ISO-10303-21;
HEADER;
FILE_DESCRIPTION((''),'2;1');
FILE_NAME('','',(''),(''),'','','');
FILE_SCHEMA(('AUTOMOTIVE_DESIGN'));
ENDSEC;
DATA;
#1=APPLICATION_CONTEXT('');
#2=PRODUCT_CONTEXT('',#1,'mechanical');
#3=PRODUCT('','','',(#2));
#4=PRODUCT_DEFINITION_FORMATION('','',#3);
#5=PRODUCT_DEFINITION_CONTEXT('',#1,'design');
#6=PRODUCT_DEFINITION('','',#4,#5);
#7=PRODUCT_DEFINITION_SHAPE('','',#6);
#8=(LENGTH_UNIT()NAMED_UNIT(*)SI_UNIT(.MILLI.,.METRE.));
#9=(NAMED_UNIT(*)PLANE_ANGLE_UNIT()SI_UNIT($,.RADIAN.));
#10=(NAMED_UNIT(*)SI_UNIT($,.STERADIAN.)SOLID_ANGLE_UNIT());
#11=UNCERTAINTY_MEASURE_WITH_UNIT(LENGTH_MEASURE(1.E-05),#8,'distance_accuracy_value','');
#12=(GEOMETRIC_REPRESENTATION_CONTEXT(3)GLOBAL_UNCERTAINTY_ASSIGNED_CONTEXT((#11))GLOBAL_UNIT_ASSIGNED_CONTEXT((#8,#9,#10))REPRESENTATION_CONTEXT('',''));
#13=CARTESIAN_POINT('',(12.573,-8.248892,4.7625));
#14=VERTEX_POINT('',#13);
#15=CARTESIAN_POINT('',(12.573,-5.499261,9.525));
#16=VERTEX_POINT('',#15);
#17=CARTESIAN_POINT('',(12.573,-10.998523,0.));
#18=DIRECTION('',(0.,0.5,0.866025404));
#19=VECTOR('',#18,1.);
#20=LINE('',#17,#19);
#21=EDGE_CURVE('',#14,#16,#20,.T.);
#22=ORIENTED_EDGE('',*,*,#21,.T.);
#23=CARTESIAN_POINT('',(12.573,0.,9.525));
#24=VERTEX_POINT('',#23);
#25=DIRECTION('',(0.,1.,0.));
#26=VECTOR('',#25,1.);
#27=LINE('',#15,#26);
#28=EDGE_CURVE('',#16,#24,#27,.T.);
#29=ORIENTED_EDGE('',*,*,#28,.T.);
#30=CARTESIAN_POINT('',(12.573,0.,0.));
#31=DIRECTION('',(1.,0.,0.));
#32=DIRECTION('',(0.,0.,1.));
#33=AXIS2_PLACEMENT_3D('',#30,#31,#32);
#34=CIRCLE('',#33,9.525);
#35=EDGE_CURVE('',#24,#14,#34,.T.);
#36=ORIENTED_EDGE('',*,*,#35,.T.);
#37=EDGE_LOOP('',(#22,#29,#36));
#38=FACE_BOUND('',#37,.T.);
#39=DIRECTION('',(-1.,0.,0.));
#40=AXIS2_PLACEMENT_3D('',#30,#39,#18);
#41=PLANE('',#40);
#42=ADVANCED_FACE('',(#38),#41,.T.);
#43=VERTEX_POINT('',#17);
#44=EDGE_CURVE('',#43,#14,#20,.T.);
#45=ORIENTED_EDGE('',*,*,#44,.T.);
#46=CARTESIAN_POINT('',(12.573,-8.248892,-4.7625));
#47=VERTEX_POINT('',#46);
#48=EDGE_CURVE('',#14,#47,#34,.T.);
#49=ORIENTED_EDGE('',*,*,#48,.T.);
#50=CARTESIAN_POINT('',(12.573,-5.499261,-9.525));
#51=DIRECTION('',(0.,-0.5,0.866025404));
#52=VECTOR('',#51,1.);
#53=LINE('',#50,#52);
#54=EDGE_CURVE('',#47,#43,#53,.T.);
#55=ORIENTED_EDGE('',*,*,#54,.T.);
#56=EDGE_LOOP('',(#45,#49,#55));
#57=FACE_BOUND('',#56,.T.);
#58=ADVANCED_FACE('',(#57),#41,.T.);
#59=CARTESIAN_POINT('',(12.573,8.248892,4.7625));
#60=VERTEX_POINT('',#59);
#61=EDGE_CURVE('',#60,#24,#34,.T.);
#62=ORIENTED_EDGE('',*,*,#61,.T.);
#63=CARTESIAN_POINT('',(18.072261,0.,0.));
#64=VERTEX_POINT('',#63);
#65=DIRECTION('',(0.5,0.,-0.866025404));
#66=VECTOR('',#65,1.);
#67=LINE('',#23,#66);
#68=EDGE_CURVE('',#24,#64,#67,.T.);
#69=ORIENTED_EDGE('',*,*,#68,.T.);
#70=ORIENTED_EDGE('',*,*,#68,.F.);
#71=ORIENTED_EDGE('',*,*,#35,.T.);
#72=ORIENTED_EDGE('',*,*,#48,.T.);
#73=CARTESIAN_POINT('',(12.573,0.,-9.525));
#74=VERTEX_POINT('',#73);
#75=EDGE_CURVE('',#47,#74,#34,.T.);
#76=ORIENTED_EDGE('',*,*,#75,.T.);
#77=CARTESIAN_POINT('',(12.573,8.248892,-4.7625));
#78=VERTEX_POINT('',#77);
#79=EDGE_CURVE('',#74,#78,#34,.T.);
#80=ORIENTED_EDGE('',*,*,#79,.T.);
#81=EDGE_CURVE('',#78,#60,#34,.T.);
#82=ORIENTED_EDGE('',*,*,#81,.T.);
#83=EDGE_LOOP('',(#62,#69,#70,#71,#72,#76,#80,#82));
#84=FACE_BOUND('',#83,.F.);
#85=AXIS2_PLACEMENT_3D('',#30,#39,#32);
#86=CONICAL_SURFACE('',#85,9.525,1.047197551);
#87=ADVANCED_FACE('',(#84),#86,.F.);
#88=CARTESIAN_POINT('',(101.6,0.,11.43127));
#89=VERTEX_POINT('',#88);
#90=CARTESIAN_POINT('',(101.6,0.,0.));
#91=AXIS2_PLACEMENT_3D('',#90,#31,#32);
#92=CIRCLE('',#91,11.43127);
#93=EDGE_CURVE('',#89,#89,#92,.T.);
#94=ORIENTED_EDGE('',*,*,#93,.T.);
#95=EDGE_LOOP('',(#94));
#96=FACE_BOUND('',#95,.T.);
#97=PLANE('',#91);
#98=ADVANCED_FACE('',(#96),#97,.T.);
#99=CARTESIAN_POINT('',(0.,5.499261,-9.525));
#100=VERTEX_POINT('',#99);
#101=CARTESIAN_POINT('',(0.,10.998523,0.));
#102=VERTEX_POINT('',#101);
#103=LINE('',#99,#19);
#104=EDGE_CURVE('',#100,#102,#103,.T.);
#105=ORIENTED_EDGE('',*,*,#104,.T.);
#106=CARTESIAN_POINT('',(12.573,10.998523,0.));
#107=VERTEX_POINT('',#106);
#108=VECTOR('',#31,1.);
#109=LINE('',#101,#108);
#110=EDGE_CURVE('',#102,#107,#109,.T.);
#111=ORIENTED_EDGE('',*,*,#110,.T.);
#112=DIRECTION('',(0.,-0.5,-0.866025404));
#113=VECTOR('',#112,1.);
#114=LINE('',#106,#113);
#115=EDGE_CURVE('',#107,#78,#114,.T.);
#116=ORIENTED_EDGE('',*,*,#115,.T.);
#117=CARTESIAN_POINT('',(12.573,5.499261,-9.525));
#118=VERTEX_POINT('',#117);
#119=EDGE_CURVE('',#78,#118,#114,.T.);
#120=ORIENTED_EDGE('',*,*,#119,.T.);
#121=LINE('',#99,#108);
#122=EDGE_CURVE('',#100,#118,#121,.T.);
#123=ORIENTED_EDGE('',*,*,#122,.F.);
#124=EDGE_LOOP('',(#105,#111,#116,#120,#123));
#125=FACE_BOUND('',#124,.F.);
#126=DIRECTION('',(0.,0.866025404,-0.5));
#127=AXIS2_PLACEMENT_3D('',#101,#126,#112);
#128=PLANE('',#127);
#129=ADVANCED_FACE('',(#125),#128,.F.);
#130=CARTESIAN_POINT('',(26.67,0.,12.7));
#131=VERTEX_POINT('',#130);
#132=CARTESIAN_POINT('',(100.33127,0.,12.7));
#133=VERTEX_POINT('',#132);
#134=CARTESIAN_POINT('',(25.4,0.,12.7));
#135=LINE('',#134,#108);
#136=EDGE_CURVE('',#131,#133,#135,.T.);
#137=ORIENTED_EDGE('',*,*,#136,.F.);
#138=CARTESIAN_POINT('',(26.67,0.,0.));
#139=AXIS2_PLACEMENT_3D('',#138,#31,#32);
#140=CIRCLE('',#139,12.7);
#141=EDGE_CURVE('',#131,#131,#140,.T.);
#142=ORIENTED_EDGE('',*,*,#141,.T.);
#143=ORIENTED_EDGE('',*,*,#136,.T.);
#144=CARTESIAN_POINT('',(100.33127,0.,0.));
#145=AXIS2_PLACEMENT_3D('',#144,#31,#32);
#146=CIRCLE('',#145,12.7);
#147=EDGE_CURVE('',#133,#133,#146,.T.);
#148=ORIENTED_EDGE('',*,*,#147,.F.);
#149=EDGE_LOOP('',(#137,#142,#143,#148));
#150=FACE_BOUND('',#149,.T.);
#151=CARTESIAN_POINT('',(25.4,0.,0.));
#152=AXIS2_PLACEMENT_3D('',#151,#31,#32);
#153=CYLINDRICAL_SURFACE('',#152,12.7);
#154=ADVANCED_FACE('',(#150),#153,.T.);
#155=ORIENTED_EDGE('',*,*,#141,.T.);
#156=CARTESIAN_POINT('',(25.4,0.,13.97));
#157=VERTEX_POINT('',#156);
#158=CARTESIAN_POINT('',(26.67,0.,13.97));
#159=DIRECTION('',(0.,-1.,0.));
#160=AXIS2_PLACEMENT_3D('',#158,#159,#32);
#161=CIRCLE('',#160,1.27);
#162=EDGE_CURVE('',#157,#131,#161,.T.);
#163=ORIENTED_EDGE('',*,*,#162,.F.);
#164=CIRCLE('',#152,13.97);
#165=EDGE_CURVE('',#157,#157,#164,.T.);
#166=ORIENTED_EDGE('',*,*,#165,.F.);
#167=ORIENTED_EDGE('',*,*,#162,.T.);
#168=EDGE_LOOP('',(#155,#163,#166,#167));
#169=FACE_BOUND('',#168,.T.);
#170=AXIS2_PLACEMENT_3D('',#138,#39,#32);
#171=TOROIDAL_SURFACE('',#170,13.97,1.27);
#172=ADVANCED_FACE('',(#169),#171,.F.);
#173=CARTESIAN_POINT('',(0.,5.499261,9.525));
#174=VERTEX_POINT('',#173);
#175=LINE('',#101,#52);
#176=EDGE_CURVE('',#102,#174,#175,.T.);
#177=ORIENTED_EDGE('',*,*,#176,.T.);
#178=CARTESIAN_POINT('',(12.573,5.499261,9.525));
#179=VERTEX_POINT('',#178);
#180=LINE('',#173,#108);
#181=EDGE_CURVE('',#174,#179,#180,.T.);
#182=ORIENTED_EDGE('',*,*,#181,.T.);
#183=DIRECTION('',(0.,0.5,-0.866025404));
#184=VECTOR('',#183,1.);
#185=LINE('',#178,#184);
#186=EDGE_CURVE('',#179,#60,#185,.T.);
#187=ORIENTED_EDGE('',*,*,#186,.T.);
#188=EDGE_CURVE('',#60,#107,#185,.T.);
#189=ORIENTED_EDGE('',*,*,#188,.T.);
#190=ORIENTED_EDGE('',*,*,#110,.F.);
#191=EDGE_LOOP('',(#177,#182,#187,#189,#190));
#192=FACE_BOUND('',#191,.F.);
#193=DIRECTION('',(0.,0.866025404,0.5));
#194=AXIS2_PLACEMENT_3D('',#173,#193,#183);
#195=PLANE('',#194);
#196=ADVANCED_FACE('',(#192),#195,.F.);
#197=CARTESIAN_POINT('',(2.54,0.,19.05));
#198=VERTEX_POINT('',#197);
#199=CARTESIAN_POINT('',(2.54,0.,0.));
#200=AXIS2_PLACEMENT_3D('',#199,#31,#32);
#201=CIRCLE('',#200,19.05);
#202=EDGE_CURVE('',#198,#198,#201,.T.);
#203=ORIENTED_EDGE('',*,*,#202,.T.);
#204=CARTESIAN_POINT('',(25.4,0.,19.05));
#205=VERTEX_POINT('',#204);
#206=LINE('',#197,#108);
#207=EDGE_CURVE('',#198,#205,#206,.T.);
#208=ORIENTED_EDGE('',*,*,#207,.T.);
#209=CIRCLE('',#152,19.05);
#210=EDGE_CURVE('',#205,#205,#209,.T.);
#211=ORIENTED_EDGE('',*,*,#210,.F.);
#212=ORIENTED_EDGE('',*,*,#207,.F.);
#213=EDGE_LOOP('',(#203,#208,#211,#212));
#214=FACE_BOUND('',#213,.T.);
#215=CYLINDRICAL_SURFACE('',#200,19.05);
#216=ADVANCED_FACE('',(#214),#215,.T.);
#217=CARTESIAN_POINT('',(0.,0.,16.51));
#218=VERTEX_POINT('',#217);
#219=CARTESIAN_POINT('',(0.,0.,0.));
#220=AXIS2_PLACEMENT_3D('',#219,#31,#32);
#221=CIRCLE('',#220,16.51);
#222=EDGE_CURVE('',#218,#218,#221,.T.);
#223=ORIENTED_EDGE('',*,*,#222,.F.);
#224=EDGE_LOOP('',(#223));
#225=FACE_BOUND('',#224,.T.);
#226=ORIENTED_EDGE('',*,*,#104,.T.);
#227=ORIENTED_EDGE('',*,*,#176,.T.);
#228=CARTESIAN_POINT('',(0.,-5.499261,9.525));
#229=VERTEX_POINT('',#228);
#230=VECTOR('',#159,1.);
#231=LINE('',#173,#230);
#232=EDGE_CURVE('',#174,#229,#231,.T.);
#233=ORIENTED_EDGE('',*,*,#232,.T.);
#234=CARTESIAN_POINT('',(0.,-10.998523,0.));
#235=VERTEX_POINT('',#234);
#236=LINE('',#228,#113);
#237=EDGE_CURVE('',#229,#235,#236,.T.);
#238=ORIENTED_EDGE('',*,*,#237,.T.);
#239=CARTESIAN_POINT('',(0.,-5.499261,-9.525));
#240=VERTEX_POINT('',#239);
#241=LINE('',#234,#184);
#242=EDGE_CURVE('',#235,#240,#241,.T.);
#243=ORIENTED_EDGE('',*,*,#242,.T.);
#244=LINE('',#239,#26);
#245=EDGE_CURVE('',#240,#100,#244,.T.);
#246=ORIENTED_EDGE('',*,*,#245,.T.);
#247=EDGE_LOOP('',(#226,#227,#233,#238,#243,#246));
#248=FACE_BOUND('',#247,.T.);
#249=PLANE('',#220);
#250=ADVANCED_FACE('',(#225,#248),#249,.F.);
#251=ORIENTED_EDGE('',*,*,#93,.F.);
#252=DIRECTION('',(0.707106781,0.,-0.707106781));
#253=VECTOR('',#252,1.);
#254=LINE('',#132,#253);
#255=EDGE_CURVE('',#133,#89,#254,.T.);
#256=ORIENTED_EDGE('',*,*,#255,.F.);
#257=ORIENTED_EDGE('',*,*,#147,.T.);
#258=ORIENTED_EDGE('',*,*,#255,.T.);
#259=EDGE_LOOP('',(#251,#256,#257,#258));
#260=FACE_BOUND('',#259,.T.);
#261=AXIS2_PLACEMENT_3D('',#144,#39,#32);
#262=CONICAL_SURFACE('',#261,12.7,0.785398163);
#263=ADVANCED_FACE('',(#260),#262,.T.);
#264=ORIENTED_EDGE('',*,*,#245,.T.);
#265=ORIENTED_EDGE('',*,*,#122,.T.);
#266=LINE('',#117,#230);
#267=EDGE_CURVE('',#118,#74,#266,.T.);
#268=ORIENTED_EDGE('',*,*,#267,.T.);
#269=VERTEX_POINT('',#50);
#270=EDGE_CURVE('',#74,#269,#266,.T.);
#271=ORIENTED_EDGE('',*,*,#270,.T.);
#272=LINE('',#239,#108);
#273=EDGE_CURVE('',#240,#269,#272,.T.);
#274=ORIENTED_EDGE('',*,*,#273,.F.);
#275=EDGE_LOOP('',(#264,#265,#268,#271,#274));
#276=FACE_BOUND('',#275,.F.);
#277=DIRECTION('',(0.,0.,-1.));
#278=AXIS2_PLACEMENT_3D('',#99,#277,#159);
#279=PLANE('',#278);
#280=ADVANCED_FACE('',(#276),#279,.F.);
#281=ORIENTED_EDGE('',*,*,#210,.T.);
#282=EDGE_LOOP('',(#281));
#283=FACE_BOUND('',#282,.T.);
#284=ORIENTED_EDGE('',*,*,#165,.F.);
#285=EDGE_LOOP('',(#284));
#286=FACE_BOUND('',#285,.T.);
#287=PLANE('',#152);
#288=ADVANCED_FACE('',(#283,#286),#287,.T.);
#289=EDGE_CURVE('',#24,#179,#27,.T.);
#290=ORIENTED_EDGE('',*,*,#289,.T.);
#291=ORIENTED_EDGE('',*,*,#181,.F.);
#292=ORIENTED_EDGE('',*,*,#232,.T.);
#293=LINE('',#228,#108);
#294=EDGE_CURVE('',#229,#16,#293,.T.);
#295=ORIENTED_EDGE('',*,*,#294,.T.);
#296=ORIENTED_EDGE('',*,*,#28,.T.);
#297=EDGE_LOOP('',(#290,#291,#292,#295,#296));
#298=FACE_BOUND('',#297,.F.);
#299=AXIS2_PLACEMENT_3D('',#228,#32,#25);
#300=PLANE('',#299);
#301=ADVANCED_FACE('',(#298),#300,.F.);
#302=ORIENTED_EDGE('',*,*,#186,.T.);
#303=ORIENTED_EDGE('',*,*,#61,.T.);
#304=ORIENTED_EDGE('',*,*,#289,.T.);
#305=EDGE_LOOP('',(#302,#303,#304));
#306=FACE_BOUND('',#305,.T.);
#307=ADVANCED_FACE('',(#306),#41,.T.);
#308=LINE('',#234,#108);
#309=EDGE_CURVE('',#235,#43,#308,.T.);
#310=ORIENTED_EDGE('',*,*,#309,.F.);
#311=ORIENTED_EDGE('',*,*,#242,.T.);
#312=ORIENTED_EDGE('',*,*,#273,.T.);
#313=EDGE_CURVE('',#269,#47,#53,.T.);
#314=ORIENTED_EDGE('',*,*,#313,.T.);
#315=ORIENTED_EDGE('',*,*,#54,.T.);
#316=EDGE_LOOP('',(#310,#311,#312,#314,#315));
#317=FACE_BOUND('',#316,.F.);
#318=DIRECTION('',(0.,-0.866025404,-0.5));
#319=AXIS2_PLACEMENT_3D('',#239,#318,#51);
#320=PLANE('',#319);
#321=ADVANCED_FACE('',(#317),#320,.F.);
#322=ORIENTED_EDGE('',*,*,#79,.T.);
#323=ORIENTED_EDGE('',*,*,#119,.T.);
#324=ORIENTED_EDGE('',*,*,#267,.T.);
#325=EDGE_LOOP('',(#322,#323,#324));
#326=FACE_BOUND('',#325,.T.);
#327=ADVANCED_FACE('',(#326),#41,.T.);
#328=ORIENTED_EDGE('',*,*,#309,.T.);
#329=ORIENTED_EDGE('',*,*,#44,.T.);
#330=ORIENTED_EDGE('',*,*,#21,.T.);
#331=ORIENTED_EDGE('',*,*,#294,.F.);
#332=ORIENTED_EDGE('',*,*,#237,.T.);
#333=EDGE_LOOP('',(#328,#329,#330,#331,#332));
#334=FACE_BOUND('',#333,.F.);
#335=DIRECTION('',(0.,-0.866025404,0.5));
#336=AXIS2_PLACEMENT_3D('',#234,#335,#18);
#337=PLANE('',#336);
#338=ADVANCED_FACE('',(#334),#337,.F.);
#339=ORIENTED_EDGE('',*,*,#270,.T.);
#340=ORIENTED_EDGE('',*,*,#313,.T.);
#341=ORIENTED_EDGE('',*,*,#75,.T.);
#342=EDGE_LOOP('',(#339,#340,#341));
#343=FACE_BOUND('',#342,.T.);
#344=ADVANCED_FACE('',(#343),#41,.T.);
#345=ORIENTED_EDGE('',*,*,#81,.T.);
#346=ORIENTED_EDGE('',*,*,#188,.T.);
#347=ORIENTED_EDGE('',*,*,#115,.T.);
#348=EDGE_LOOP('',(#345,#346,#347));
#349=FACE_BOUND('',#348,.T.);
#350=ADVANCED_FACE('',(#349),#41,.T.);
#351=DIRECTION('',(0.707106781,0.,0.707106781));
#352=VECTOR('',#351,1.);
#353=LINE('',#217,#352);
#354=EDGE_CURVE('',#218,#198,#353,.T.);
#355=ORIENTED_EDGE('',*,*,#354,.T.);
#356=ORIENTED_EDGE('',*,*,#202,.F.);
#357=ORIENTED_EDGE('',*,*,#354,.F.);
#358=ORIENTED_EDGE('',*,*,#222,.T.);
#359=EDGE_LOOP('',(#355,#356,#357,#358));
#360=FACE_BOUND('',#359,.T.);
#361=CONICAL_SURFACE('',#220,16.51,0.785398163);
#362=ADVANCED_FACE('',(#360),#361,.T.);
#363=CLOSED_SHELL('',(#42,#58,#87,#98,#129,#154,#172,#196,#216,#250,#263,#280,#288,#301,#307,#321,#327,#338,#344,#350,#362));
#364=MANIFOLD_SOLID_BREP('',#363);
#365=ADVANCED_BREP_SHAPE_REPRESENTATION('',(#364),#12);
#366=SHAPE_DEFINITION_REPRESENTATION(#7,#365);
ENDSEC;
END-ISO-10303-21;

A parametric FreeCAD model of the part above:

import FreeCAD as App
import Part
import Sketcher
Q = App.Units.Quantity


def edges_at(feature, points):
    """Names of the edges that pass closest to the given points."""
    edges = feature.Shape.Edges
    near = lambda p: min(range(len(edges)), key=lambda i: edges[i].distToShape(Part.Vertex(*p))[0])
    return sorted({f"Edge{near(p) + 1}" for p in points})

doc = App.newDocument("Part")
body = doc.addObject("PartDesign::Body", "Body")

sketch1 = body.newObject("Sketcher::SketchObject", "Sketch")
sketch1.AttachmentSupport = (doc.getObject("XY_Plane"), [""])
sketch1.MapMode = "FlatFace"
sketch1.addGeometry([
    Part.LineSegment(App.Vector(0, 16.51, 0), App.Vector(0, 0, 0)),
    Part.LineSegment(App.Vector(0, 0, 0), App.Vector(101.6, 0, 0)),
    Part.LineSegment(App.Vector(101.6, 0, 0), App.Vector(101.6, 11.43127, 0)),
    Part.LineSegment(App.Vector(101.6, 11.43127, 0), App.Vector(100.33127, 12.7, 0)),
    Part.LineSegment(App.Vector(100.33127, 12.7, 0), App.Vector(25.4, 12.7, 0)),
    Part.LineSegment(App.Vector(25.4, 12.7, 0), App.Vector(25.4, 19.05, 0)),
    Part.LineSegment(App.Vector(25.4, 19.05, 0), App.Vector(2.54, 19.05, 0)),
    Part.LineSegment(App.Vector(2.54, 19.05, 0), App.Vector(0, 16.51, 0)),
], False)
sketch1.addConstraint([
    Sketcher.Constraint("Coincident", 0, 2, 1, 1),
    Sketcher.Constraint("Coincident", 1, 2, 2, 1),
    Sketcher.Constraint("Coincident", 2, 2, 3, 1),
    Sketcher.Constraint("Coincident", 3, 2, 4, 1),
    Sketcher.Constraint("Coincident", 4, 2, 5, 1),
    Sketcher.Constraint("Coincident", 5, 2, 6, 1),
    Sketcher.Constraint("Coincident", 6, 2, 7, 1),
    Sketcher.Constraint("Coincident", 7, 2, 0, 1),
    Sketcher.Constraint("Vertical", 0),
    Sketcher.Constraint("Horizontal", 1),
    Sketcher.Constraint("Vertical", 2),
    Sketcher.Constraint("Horizontal", 4),
    Sketcher.Constraint("Vertical", 5),
    Sketcher.Constraint("Horizontal", 6),
    Sketcher.Constraint("Coincident", 0, 2, -1, 1),
    Sketcher.Constraint("Perpendicular", 3, 7),
    Sketcher.Constraint("DistanceX", 1, 1, 1, 2, Q("4 in")),
    Sketcher.Constraint("DistanceX", 6, 2, 6, 1, Q("0.9 in")),
    Sketcher.Constraint("DistanceX", -1, 1, 4, 2, Q("1 in")),
    Sketcher.Constraint("Angle", 3, Q("135 deg")),
    Sketcher.Constraint("DistanceY", 0, 2, 0, 1, Q("0.65 in")),
    Sketcher.Constraint("DistanceY", 5, 1, 5, 2, Q("0.25 in")),
    Sketcher.Constraint("DistanceX", 4, 2, 4, 1, 74.93127),
])
revolution = body.newObject("PartDesign::Revolution", "Revolution")
revolution.Profile = sketch1
revolution.ReferenceAxis = (sketch1, ["H_Axis"])
revolution.Angle = 360
doc.recompute()

fillet = body.newObject("PartDesign::Fillet", "Fillet")
fillet.Base = (revolution, edges_at(revolution, [(25.4, 0, -12.7)]))
fillet.Radius = Q("0.05 in")

sketch2 = body.newObject("Sketcher::SketchObject", "Sketch001")
sketch2.AttachmentSupport = (doc.getObject("XY_Plane"), [""])
sketch2.MapMode = "FlatFace"
sketch2.addGeometry([
    Part.LineSegment(App.Vector(12.573, 9.525, 0), App.Vector(0, 9.525, 0)),
    Part.LineSegment(App.Vector(0, 9.525, 0), App.Vector(0, 0, 0)),
    Part.LineSegment(App.Vector(0, 0, 0), App.Vector(18.072261, 0, 0)),
    Part.LineSegment(App.Vector(18.072261, 0, 0), App.Vector(12.573, 9.525, 0)),
], False)
sketch2.addConstraint([
    Sketcher.Constraint("Coincident", 0, 2, 1, 1),
    Sketcher.Constraint("Coincident", 1, 2, 2, 1),
    Sketcher.Constraint("Coincident", 2, 2, 3, 1),
    Sketcher.Constraint("Coincident", 3, 2, 0, 1),
    Sketcher.Constraint("Horizontal", 0),
    Sketcher.Constraint("Vertical", 1),
    Sketcher.Constraint("Horizontal", 2),
    Sketcher.Constraint("Coincident", 1, 2, -1, 1),
    Sketcher.Constraint("Angle", 3, Q("120 deg")),
    Sketcher.Constraint("DistanceX", 0, 2, 0, 1, Q("0.495 in")),
    Sketcher.Constraint("DistanceY", 1, 2, 1, 1, Q("0.375 in")),
])
groove = body.newObject("PartDesign::Groove", "Groove")
groove.Profile = sketch2
groove.ReferenceAxis = (sketch2, ["H_Axis"])
groove.Angle = 360

sketch3 = body.newObject("Sketcher::SketchObject", "Sketch002")
sketch3.AttachmentSupport = (doc.getObject("YZ_Plane"), [""])
sketch3.MapMode = "FlatFace"
sketch3.addGeometry([
    Part.LineSegment(App.Vector(10.998523, 0, 0), App.Vector(5.499261, -9.525, 0)),
    Part.LineSegment(App.Vector(5.499261, -9.525, 0), App.Vector(-5.499261, -9.525, 0)),
    Part.LineSegment(App.Vector(-5.499261, -9.525, 0), App.Vector(-10.998523, 0, 0)),
    Part.LineSegment(App.Vector(-10.998523, 0, 0), App.Vector(-5.499261, 9.525, 0)),
    Part.LineSegment(App.Vector(-5.499261, 9.525, 0), App.Vector(5.499261, 9.525, 0)),
    Part.LineSegment(App.Vector(5.499261, 9.525, 0), App.Vector(10.998523, 0, 0)),
], False)
sketch3.addConstraint([
    Sketcher.Constraint("Coincident", 0, 2, 1, 1),
    Sketcher.Constraint("Coincident", 1, 2, 2, 1),
    Sketcher.Constraint("Coincident", 2, 2, 3, 1),
    Sketcher.Constraint("Coincident", 3, 2, 4, 1),
    Sketcher.Constraint("Coincident", 4, 2, 5, 1),
    Sketcher.Constraint("Coincident", 5, 2, 0, 1),
    Sketcher.Constraint("Horizontal", 1),
    Sketcher.Constraint("Horizontal", 4),
    Sketcher.Constraint("Symmetric", 0, 2, 3, 2, -1, 1),
    Sketcher.Constraint("Symmetric", 2, 2, 5, 2, -1, 1),
    Sketcher.Constraint("PointOnObject", 2, 2, -1),
    Sketcher.Constraint("Parallel", 2, 5),
    Sketcher.Constraint("Vertical", 1, 2, 3, 2),
    Sketcher.Constraint("Angle", 0, Q("-120 deg")),
    Sketcher.Constraint("DistanceY", 1, 2, 3, 2, Q("0.75 in")),
    Sketcher.Constraint("DistanceX", 1, 2, 1, 1, 10.998523),
])
pocket1 = body.newObject("PartDesign::Pocket", "Pocket")
pocket1.Profile = sketch3
pocket1.Length = Q("0.495 in")
pocket1.Reversed = True

doc.recompute()
